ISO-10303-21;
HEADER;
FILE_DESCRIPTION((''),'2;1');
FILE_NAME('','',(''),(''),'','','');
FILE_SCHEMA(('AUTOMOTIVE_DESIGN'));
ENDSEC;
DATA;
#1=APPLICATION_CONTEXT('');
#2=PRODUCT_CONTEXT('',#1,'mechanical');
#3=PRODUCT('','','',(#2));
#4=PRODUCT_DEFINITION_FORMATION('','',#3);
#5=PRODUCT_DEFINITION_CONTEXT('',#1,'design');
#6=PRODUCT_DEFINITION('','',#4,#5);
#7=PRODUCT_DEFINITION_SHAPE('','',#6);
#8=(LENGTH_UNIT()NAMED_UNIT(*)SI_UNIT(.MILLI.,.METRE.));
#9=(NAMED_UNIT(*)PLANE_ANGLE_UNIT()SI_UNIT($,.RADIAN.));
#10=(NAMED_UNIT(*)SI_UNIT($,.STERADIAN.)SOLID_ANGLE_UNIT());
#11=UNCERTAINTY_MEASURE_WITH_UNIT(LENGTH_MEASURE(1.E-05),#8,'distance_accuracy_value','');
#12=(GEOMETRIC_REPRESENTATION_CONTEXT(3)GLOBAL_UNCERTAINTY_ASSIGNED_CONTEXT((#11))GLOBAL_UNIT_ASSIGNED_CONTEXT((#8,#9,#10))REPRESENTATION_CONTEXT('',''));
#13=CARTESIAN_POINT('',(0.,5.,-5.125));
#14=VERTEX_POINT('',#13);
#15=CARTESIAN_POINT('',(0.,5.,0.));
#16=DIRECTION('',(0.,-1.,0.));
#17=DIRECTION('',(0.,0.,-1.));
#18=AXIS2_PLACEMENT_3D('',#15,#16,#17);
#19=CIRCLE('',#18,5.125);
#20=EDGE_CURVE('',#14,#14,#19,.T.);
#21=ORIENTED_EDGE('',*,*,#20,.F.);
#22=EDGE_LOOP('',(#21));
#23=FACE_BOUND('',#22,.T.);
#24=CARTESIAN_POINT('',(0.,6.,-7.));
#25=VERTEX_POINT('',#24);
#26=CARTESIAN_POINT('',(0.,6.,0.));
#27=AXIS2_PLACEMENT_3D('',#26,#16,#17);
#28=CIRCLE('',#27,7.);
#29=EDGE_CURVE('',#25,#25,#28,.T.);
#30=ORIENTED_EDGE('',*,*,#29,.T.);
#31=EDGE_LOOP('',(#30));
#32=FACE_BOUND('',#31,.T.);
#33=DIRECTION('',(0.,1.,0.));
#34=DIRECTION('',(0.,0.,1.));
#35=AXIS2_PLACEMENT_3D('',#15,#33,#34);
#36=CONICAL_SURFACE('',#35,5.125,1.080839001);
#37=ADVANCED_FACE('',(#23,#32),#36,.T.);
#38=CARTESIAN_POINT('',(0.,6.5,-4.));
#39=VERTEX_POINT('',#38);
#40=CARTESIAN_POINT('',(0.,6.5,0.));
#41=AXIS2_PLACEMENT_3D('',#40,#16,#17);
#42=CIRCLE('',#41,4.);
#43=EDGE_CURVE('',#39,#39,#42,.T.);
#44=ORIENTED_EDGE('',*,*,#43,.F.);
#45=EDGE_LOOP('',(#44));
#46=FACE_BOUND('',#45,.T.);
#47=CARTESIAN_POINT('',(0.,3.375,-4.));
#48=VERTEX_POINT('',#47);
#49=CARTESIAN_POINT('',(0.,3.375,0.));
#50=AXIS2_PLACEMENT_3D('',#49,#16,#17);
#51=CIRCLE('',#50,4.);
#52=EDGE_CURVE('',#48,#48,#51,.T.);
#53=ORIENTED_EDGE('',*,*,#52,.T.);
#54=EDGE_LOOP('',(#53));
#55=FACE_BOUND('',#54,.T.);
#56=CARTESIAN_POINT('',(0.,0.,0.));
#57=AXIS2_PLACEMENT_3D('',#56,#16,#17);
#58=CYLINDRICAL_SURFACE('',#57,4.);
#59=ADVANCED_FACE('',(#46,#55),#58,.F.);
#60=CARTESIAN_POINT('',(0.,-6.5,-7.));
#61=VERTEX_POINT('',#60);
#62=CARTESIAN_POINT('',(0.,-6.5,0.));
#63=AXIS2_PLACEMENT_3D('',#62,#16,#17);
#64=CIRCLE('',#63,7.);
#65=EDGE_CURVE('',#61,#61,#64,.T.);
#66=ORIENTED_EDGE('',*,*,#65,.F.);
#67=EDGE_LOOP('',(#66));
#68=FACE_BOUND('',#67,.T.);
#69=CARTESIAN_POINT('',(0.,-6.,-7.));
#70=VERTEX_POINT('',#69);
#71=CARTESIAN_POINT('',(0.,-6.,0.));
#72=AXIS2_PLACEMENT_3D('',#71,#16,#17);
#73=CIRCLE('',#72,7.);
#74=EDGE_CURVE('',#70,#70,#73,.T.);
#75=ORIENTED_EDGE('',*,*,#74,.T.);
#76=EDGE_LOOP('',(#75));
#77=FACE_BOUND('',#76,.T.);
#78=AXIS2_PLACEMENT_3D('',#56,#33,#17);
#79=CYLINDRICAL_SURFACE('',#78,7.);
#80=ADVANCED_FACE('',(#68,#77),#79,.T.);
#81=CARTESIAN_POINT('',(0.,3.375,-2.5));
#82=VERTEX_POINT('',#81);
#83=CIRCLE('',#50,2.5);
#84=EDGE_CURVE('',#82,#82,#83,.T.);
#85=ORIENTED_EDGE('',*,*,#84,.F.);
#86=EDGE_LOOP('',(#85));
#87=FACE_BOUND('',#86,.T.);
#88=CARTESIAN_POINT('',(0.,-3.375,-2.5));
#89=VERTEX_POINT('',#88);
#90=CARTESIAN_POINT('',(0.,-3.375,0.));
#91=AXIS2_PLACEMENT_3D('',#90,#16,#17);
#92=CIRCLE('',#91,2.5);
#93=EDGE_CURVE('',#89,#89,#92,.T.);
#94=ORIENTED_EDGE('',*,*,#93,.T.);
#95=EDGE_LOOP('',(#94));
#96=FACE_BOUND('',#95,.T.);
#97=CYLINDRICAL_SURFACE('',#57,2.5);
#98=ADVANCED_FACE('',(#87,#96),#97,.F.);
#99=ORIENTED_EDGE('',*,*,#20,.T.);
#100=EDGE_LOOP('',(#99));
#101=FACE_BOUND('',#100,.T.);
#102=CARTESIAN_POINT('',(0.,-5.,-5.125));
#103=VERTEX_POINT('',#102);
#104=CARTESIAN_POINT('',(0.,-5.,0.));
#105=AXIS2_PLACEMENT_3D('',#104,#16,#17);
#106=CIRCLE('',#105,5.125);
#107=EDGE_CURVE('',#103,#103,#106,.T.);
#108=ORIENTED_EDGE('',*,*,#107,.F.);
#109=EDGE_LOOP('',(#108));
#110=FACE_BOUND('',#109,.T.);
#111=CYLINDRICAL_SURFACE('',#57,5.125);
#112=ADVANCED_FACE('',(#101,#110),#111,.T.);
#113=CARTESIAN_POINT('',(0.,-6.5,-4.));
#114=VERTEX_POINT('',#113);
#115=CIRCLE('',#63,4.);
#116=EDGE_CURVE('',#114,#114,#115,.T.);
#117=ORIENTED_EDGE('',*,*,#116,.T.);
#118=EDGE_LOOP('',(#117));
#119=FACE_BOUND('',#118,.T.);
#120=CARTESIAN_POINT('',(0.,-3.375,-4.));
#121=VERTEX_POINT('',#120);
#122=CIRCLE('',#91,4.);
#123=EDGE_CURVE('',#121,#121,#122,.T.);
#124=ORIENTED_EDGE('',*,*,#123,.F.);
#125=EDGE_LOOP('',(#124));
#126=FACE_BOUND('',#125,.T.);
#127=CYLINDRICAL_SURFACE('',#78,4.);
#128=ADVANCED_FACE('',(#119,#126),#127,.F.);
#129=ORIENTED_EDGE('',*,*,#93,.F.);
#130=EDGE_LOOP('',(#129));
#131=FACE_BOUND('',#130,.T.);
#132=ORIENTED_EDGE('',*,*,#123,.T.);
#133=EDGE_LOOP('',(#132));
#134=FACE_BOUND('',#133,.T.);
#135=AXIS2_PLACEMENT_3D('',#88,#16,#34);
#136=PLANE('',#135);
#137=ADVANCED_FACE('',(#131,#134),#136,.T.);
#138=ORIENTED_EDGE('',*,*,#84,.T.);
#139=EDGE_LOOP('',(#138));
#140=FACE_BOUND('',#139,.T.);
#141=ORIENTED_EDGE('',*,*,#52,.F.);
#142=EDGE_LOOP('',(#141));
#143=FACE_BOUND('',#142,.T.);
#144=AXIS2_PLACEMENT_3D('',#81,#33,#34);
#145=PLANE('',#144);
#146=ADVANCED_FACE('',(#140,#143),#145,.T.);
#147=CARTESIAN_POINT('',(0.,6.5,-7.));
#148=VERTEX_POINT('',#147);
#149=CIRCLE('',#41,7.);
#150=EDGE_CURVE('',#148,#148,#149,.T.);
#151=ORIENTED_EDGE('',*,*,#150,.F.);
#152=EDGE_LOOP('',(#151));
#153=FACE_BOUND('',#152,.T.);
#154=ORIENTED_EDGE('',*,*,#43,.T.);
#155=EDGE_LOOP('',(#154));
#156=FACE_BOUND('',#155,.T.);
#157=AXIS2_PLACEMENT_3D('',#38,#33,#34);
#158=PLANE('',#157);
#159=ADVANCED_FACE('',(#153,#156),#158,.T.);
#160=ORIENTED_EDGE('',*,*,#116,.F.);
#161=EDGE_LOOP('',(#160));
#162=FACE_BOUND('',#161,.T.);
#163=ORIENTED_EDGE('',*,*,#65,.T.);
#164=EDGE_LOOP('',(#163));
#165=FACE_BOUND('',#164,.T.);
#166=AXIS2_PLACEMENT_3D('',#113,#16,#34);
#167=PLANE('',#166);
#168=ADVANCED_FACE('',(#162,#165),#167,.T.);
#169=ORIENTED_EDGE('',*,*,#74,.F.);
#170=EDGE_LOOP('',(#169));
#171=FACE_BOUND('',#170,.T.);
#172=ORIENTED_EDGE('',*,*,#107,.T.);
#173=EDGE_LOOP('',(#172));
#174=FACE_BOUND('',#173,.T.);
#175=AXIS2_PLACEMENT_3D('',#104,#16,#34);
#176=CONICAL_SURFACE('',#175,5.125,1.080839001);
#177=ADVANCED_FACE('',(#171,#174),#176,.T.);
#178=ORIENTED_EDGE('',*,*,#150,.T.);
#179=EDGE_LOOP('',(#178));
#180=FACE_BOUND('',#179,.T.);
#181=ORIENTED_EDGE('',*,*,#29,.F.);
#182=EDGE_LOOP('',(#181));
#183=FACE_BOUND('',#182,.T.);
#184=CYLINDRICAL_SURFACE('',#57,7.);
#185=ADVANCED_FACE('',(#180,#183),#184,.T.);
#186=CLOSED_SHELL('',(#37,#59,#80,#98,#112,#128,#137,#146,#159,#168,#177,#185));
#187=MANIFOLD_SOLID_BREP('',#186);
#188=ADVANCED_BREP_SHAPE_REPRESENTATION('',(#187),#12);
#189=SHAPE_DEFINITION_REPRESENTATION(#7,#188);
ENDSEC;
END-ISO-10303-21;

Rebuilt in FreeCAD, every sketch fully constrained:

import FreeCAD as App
import Part
import Sketcher


def add_polygon(sketch, points):
    """Adds a closed chain of lines whose ends are joined by coincident constraints."""
    first, n = sketch.GeometryCount, len(points)
    for a, b in zip(points, points[1:] + points[:1]):
        sketch.addGeometry(Part.LineSegment(App.Vector(*a, 0), App.Vector(*b, 0)), False)
    for i in range(n):
        sketch.addConstraint(Sketcher.Constraint("Coincident", first + i, 2, first + (i + 1) % n, 1))

doc = App.newDocument("Part")
params = doc.addObject("Spreadsheet::Sheet", "Params")
for row, (alias, value) in enumerate([
    ("sketch1_width", "5 mm"),
    ("sketch1_height", "3 mm"),
    ("sketch1_width2", "0.5 mm"),
    ("sketch1_height2", "1.5 mm"),
    ("revolution_angle", "360 deg"),
], start=1):
    params.set(f"A{row}", alias)
    params.set(f"B{row}", "=" + value)
    params.setAlias(f"B{row}", alias)

body = doc.addObject("PartDesign::Body", "Body")

# Sketch on YZ plane
sketch1 = body.newObject("Sketcher::SketchObject", "Sketch")
sketch1.AttachmentSupport = (doc.getObject("YZ_Plane"), [""])
sketch1.MapMode = "FlatFace"
add_polygon(sketch1, [(3.4, -2.5), (0, -2.5), (0, -5.1), (5, -5.1), (6, -7), (6.5, -7), (6.5, -4), (3.4, -4)])  # lines 0-7
sketch1.addConstraint([
    Sketcher.Constraint("Horizontal", 0),
    Sketcher.Constraint("Vertical", 1),
    Sketcher.Constraint("Horizontal", 2),
    Sketcher.Constraint("Horizontal", 4),
    Sketcher.Constraint("Vertical", 5),
    Sketcher.Constraint("Horizontal", 6),
    Sketcher.Constraint("Vertical", 7),
    Sketcher.Constraint("PointOnObject", 0, 2, -2),
    Sketcher.Constraint("DistanceX", 2, 1, 2, 2, 5.0),
    Sketcher.Constraint("DistanceY", 5, 1, 5, 2, 3.0),
    Sketcher.Constraint("DistanceX", 4, 1, 4, 2, 0.5),
    Sketcher.Constraint("DistanceY", 7, 1, 7, 2, 1.5),
    Sketcher.Constraint("DistanceX", -1, 1, 3, 2, 6.0),
    Sketcher.Constraint("DistanceY", 3, 2, -1, 1, 7.0),
    Sketcher.Constraint("DistanceX", 0, 2, 0, 1, 3.375),
    Sketcher.Constraint("DistanceY", 1, 2, 1, 1, 2.625),
])
sketch1.setExpression("Constraints[16]", "Params.sketch1_width")
sketch1.setExpression("Constraints[17]", "Params.sketch1_height")
sketch1.setExpression("Constraints[18]", "Params.sketch1_width2")
sketch1.setExpression("Constraints[19]", "Params.sketch1_height2")
revolution = body.newObject("PartDesign::Revolution", "Revolution")
revolution.Profile = sketch1
revolution.ReferenceAxis = (sketch1, ["H_Axis"])
revolution.setExpression("Angle", "Params.revolution_angle")
doc.recompute()

mirrored = body.newObject("PartDesign::Mirrored", "Mirrored")
mirrored.Originals = [revolution]
mirrored.MirrorPlane = (doc.getObject("XZ_Plane"), [""])
body.Tip = mirrored

doc.recompute()
